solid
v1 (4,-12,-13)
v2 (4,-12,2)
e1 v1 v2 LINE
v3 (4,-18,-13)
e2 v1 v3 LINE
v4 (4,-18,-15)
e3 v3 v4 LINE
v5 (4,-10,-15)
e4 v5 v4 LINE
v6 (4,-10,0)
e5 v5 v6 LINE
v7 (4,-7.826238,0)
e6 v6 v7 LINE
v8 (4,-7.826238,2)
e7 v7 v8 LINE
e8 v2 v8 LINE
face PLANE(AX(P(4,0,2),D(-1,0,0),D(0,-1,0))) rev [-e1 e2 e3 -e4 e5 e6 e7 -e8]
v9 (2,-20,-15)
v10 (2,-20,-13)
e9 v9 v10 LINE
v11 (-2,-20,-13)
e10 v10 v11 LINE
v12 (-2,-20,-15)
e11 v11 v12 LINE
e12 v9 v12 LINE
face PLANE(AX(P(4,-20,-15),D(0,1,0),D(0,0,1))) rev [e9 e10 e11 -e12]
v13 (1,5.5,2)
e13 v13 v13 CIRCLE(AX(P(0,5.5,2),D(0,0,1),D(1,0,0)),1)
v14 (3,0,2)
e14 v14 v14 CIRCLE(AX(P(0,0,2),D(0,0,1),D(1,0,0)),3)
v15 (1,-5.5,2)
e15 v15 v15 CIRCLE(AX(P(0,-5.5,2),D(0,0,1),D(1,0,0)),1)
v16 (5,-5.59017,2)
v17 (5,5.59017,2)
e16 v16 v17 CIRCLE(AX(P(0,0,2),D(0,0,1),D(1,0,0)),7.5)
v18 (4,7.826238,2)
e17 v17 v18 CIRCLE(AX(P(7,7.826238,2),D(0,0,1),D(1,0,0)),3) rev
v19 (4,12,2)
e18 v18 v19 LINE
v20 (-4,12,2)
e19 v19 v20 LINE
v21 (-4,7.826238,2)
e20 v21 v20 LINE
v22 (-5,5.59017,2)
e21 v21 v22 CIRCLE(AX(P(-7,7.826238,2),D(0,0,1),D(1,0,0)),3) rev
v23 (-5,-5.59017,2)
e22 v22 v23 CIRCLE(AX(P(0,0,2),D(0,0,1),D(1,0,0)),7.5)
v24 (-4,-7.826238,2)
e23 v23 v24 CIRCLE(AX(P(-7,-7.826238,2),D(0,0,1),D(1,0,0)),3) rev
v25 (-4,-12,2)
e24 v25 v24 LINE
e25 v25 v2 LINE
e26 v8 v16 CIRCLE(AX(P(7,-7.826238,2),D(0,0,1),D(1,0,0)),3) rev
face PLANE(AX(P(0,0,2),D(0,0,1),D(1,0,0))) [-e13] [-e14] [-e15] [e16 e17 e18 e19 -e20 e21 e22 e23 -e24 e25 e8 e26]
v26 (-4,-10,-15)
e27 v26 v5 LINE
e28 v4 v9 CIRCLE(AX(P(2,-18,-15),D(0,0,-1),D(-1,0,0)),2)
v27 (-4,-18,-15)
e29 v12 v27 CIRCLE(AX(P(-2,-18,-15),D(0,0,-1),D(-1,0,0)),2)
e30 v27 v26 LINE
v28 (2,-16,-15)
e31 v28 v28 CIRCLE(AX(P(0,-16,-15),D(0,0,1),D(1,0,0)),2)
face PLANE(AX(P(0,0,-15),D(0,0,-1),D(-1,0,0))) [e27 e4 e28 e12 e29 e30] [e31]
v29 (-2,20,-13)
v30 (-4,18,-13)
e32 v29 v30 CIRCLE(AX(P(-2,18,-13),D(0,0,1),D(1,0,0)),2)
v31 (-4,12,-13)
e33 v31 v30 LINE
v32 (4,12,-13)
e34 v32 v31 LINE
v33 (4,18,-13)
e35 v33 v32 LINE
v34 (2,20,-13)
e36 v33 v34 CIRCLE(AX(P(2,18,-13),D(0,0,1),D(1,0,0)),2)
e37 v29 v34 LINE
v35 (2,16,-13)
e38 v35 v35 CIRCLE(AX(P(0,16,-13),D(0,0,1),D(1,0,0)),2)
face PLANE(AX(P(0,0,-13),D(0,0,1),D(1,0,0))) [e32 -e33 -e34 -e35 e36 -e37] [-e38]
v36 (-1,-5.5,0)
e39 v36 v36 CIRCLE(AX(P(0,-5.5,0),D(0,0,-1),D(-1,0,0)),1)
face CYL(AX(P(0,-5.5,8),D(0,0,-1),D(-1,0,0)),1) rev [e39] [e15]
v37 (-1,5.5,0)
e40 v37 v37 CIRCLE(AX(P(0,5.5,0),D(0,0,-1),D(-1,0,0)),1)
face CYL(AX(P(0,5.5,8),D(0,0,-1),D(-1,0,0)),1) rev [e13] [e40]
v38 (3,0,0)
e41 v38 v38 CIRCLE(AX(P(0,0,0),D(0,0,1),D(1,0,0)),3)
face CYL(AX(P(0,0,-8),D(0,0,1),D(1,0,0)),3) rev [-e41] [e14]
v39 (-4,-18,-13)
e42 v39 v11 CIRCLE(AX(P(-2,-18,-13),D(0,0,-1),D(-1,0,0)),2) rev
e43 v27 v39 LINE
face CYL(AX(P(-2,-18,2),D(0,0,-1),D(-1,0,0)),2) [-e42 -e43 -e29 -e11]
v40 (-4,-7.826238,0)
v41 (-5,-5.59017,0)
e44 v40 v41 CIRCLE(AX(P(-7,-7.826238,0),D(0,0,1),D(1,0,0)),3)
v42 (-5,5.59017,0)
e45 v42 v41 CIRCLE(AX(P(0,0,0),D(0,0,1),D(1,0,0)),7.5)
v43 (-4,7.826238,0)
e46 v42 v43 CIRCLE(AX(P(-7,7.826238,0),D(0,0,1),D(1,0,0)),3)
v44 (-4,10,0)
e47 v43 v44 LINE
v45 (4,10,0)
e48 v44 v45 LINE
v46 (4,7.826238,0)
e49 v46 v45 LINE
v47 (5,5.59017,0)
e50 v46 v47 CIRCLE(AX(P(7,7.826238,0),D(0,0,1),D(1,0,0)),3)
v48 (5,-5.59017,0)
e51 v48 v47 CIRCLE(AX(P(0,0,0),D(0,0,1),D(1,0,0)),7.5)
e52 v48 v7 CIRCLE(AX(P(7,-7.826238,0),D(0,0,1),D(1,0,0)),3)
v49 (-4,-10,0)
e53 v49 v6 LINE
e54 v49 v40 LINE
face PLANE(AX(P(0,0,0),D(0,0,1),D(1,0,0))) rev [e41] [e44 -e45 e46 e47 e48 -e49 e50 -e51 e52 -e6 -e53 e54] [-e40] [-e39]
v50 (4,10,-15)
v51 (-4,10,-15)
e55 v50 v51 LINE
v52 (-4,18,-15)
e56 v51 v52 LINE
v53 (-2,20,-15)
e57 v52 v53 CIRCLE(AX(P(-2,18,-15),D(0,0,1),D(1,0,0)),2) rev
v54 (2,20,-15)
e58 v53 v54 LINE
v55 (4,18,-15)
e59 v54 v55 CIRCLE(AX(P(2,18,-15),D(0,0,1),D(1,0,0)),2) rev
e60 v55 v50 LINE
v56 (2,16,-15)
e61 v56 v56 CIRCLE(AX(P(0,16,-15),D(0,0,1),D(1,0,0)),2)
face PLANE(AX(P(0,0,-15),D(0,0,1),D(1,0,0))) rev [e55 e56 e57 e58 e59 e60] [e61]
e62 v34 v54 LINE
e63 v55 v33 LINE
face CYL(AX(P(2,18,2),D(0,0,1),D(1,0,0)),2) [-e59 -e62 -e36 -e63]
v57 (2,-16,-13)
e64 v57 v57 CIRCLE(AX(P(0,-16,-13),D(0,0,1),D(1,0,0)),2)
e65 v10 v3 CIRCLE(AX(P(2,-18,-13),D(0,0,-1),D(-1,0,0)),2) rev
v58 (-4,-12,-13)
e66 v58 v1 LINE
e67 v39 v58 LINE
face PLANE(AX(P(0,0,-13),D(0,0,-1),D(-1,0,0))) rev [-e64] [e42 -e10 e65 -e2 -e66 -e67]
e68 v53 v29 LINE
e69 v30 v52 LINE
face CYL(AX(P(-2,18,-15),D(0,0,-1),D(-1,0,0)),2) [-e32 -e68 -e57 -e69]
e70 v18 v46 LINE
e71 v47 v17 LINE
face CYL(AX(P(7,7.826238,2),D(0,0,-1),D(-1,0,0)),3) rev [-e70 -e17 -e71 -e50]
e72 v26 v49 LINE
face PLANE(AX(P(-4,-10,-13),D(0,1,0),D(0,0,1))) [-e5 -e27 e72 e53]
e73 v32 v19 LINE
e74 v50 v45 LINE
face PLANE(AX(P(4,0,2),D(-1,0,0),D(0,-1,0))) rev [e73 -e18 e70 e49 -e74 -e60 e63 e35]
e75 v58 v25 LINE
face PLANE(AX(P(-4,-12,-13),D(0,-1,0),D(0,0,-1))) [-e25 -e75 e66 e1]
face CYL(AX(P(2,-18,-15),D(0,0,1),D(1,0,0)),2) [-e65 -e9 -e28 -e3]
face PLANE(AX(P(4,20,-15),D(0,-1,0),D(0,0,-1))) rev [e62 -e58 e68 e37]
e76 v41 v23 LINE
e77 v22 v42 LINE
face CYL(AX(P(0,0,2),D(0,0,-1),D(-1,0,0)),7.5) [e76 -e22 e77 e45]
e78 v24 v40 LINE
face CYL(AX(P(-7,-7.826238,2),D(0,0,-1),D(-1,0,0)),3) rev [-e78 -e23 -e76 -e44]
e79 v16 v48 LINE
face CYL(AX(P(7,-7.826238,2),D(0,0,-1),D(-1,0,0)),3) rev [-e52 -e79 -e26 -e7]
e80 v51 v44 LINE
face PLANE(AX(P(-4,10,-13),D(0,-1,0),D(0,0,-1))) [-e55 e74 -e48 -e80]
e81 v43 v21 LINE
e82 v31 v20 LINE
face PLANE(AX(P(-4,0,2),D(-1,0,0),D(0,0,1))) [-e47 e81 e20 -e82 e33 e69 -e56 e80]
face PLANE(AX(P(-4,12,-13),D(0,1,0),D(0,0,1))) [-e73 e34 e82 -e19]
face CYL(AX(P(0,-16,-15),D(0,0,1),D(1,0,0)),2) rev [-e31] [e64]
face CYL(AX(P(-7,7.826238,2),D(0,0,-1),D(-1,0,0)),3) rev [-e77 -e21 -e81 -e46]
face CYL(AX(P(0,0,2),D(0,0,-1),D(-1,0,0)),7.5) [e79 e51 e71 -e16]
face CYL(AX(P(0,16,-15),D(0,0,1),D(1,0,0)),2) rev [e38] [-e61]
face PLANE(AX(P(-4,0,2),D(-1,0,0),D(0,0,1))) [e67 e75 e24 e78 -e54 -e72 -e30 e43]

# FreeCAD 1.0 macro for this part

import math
import FreeCAD as App
import Part
import Sketcher

V = App.Vector
Q = App.Units.Quantity


def edges_at(feature, points):
    """Names of the edges that pass closest to the given points."""
    edges = feature.Shape.Edges
    near = lambda p: min(range(len(edges)), key=lambda i: edges[i].distToShape(Part.Vertex(*p))[0])
    return sorted({f"Edge{near(p) + 1}" for p in points})

doc = App.newDocument("Part")
body = doc.addObject("PartDesign::Body", "Body")

# Sketch on XY plane
sketch1 = body.newObject("Sketcher::SketchObject", "Sketch")
sketch1.AttachmentSupport = (doc.getObject("XY_Plane"), [""])
sketch1.MapMode = "FlatFace"
sketch1.addGeometry([
    Part.ArcOfCircle(Part.Circle(V(0, 0, 0), V(0, 0, 1), 7.5), math.radians(-57.769047), math.radians(0)),  # 0
    Part.ArcOfCircle(Part.Circle(V(0, 0, 0), V(0, 0, 1), 7.5), math.radians(0), math.radians(57.769047)),  # 1
    Part.LineSegment(V(4, 6.344289, 0), V(4, 10, 0)),  # 2
    Part.LineSegment(V(4, 10, 0), V(-4, 10, 0)),  # 3
    Part.LineSegment(V(-4, 10, 0), V(-4, 6.344289, 0)),  # 4
    Part.ArcOfCircle(Part.Circle(V(0, 0, 0), V(0, 0, 1), 7.5), math.radians(122.230953), math.radians(237.769047)),  # 5
    Part.LineSegment(V(-4, -6.344289, 0), V(-4, -10, 0)),  # 6
    Part.LineSegment(V(-4, -10, 0), V(4, -10, 0)),  # 7
    Part.LineSegment(V(4, -10, 0), V(4, -6.344289, 0)),  # 8
    Part.Circle(V(0, 0, 0), V(0, 0, 1), 2),  # 9
], False)
sketch1.addConstraint([
    Sketcher.Constraint("Tangent", 0, 2, 1, 1),
    Sketcher.Constraint("Coincident", 1, 2, 2, 1),
    Sketcher.Constraint("Coincident", 2, 2, 3, 1),
    Sketcher.Constraint("Coincident", 3, 2, 4, 1),
    Sketcher.Constraint("Coincident", 4, 2, 5, 1),
    Sketcher.Constraint("Coincident", 5, 2, 6, 1),
    Sketcher.Constraint("Coincident", 6, 2, 7, 1),
    Sketcher.Constraint("Coincident", 7, 2, 8, 1),
    Sketcher.Constraint("Coincident", 8, 2, 0, 1),
    Sketcher.Constraint("Vertical", 2),
    Sketcher.Constraint("Horizontal", 3),
    Sketcher.Constraint("Vertical", 4),
    Sketcher.Constraint("Vertical", 6),
    Sketcher.Constraint("Horizontal", 7),
    Sketcher.Constraint("Vertical", 8),
    Sketcher.Constraint("Coincident", 0, 3, -1, 1),
    Sketcher.Constraint("Coincident", 5, 3, -1, 1),
    Sketcher.Constraint("Coincident", 9, 3, -1, 1),
    Sketcher.Constraint("Equal", 0, 1),
    Sketcher.Constraint("Equal", 1, 5),
    Sketcher.Constraint("Symmetric", 2, 2, 6, 2, -1, 1),
    Sketcher.Constraint("PointOnObject", 0, 2, -1),
    Sketcher.Constraint("Horizontal", 1, 2, 4, 2),
    Sketcher.Constraint("Horizontal", 5, 2, 8, 2),
    Sketcher.Constraint("Diameter", 9, Q("4 mm")),
    Sketcher.Constraint("Radius", 0, Q("7.5 mm")),
    Sketcher.Constraint("DistanceX", 3, 2, 3, 1, Q("8 mm")),
    Sketcher.Constraint("DistanceY", -1, 1, 2, 2, Q("10 mm")),
])
pad1 = body.newObject("PartDesign::Pad", "Pad")
pad1.Profile = sketch1
pad1.Length = 2

# Sketch on XY plane
sketch2 = body.newObject("Sketcher::SketchObject", "Sketch001")
sketch2.AttachmentSupport = (doc.getObject("XY_Plane"), [""])
sketch2.MapMode = "FlatFace"
sketch2.AttachmentOffset = App.Placement(V(0, 0, 2), App.Rotation())
sketch2.addGeometry([
    Part.LineSegment(V(-4, -10, 0), V(-4, -12, 0)),  # 0
    Part.LineSegment(V(-4, -12, 0), V(4, -12, 0)),  # 1
    Part.LineSegment(V(4, -12, 0), V(4, -10, 0)),  # 2
    Part.LineSegment(V(4, -10, 0), V(-4, -10, 0)),  # 3
    Part.LineSegment(V(-4, 12, 0), V(-4, 10, 0)),  # 4
    Part.LineSegment(V(-4, 10, 0), V(4, 10, 0)),  # 5
    Part.LineSegment(V(4, 10, 0), V(4, 12, 0)),  # 6
    Part.LineSegment(V(4, 12, 0), V(-4, 12, 0)),  # 7
], False)
sketch2.addConstraint([
    Sketcher.Constraint("Coincident", 0, 2, 1, 1),
    Sketcher.Constraint("Coincident", 1, 2, 2, 1),
    Sketcher.Constraint("Coincident", 2, 2, 3, 1),
    Sketcher.Constraint("Coincident", 3, 2, 0, 1),
    Sketcher.Constraint("Coincident", 4, 2, 5, 1),
    Sketcher.Constraint("Coincident", 5, 2, 6, 1),
    Sketcher.Constraint("Coincident", 6, 2, 7, 1),
    Sketcher.Constraint("Coincident", 7, 2, 4, 1),
    Sketcher.Constraint("Vertical", 0),
    Sketcher.Constraint("Horizontal", 1),
    Sketcher.Constraint("Vertical", 2),
    Sketcher.Constraint("Horizontal", 3),
    Sketcher.Constraint("Vertical", 4),
    Sketcher.Constraint("Horizontal", 5),
    Sketcher.Constraint("Vertical", 6),
    Sketcher.Constraint("Horizontal", 7),
    Sketcher.Constraint("Symmetric", 2, 2, 4, 2, -1, 1),
    Sketcher.Constraint("Symmetric", 0, 2, 6, 2, -1, 1),
    Sketcher.Constraint("Vertical", 3, 2, 4, 2),
    Sketcher.Constraint("DistanceX", 1, 1, 1, 2, Q("8 mm")),
    Sketcher.Constraint("DistanceY", 0, 2, 0, 1, Q("2 mm")),
    Sketcher.Constraint("DistanceY", 0, 2, -1, 1, Q("12 mm")),
])
pad2 = body.newObject("PartDesign::Pad", "Pad001")
pad2.Profile = sketch2
pad2.Length = 15
pad2.Reversed = True

# Sketch on XY plane
sketch3 = body.newObject("Sketcher::SketchObject", "Sketch002")
sketch3.AttachmentSupport = (doc.getObject("XY_Plane"), [""])
sketch3.MapMode = "FlatFace"
sketch3.addGeometry([
    Part.Circle(V(0, 5.5, 0), V(0, 0, 1), 1),
    Part.Circle(V(0, -5.5, 0), V(0, 0, 1), 1),
], False)
sketch3.addConstraint([
    Sketcher.Constraint("Equal", 0, 1),
    Sketcher.Constraint("Symmetric", 0, 3, 1, 3, -1, 1),
    Sketcher.Constraint("PointOnObject", 0, 3, -2),
    Sketcher.Constraint("Diameter", 0, Q("2 mm")),
    Sketcher.Constraint("DistanceY", 1, 3, 0, 3, Q("11 mm")),
])
pocket1 = body.newObject("PartDesign::Pocket", "Pocket")
pocket1.Profile = sketch3
pocket1.Length = 8
pocket1.Reversed = True

# Sketch on XY plane
sketch4 = body.newObject("Sketcher::SketchObject", "Sketch003")
sketch4.AttachmentSupport = (doc.getObject("XY_Plane"), [""])
sketch4.MapMode = "FlatFace"
sketch4.AttachmentOffset = App.Placement(V(0, 0, -13), App.Rotation())
sketch4.addGeometry([
    Part.LineSegment(V(4, -10, 0), V(4, -20, 0)),  # 0
    Part.LineSegment(V(4, -20, 0), V(-4, -20, 0)),  # 1
    Part.LineSegment(V(-4, -20, 0), V(-4, -10, 0)),  # 2
    Part.LineSegment(V(-4, -10, 0), V(4, -10, 0)),  # 3
    Part.LineSegment(V(4, 20, 0), V(4, 10, 0)),  # 4
    Part.LineSegment(V(4, 10, 0), V(-4, 10, 0)),  # 5
    Part.LineSegment(V(-4, 10, 0), V(-4, 20, 0)),  # 6
    Part.LineSegment(V(-4, 20, 0), V(4, 20, 0)),  # 7
], False)
sketch4.addConstraint([
    Sketcher.Constraint("Coincident", 0, 2, 1, 1),
    Sketcher.Constraint("Coincident", 1, 2, 2, 1),
    Sketcher.Constraint("Coincident", 2, 2, 3, 1),
    Sketcher.Constraint("Coincident", 3, 2, 0, 1),
    Sketcher.Constraint("Coincident", 4, 2, 5, 1),
    Sketcher.Constraint("Coincident", 5, 2, 6, 1),
    Sketcher.Constraint("Coincident", 6, 2, 7, 1),
    Sketcher.Constraint("Coincident", 7, 2, 4, 1),
    Sketcher.Constraint("Vertical", 0),
    Sketcher.Constraint("Horizontal", 1),
    Sketcher.Constraint("Vertical", 2),
    Sketcher.Constraint("Horizontal", 3),
    Sketcher.Constraint("Vertical", 4),
    Sketcher.Constraint("Horizontal", 5),
    Sketcher.Constraint("Vertical", 6),
    Sketcher.Constraint("Horizontal", 7),
    Sketcher.Constraint("Symmetric", 2, 2, 4, 2, -1, 1),
    Sketcher.Constraint("Symmetric", 0, 2, 6, 2, -1, 1),
    Sketcher.Constraint("Vertical", 3, 2, 4, 2),
    Sketcher.Constraint("DistanceX", 1, 2, 1, 1, Q("8 mm")),
    Sketcher.Constraint("DistanceY", 0, 2, 0, 1, Q("10 mm")),
    Sketcher.Constraint("DistanceY", 0, 2, -1, 1, Q("20 mm")),
])
pad3 = body.newObject("PartDesign::Pad", "Pad002")
pad3.Profile = sketch4
pad3.Length = 2
pad3.Reversed = True

# Sketch on XY plane
sketch5 = body.newObject("Sketcher::SketchObject", "Sketch004")
sketch5.AttachmentSupport = (doc.getObject("XY_Plane"), [""])
sketch5.MapMode = "FlatFace"
sketch5.AttachmentOffset = App.Placement(V(0, 0, -13), App.Rotation())
sketch5.addGeometry([
    Part.Circle(V(0, 16, 0), V(0, 0, 1), 2),
    Part.Circle(V(0, -16, 0), V(0, 0, 1), 2),
], False)
sketch5.addConstraint([
    Sketcher.Constraint("Equal", 0, 1),
    Sketcher.Constraint("Symmetric", 0, 3, 1, 3, -1, 1),
    Sketcher.Constraint("PointOnObject", 0, 3, -2),
    Sketcher.Constraint("Diameter", 0, Q("4 mm")),
    Sketcher.Constraint("DistanceY", -1, 1, 0, 3, Q("16 mm")),
])
pocket2 = body.newObject("PartDesign::Pocket", "Pocket001")
pocket2.Profile = sketch5
pocket2.Length = 2
doc.recompute()

fillet = body.newObject("PartDesign::Fillet", "Fillet")
fillet.Base = (pocket2, edges_at(pocket2, [
    (4, -6.344, 1),
    (-4, -6.344, 1),
    (-4, 6.344, 1),
    (4, 6.344, 1),
]))
fillet.Radius = 3
doc.recompute()

fillet2 = body.newObject("PartDesign::Fillet", "Fillet001")
fillet2.Base = (fillet, edges_at(fillet, [
    (4, 20, -14),
    (-4, 20, -14),
    (4, -20, -14),
    (-4, -20, -14),
]))
fillet2.Radius = 2

# Sketch on XY plane
sketch6 = body.newObject("Sketcher::SketchObject", "Sketch005")
sketch6.AttachmentSupport = (doc.getObject("XY_Plane"), [""])
sketch6.MapMode = "FlatFace"
sketch6.AttachmentOffset = App.Placement(V(0, 0, 2), App.Rotation())
sketch6.addGeometry(Part.Circle(V(0, 0, 0), V(0, 0, 1), 3), False)
sketch6.addConstraint([
    Sketcher.Constraint("Coincident", 0, 3, -1, 1),
    Sketcher.Constraint("Diameter", 0, Q("6 mm")),
])
pocket3 = body.newObject("PartDesign::Pocket", "Pocket002")
pocket3.Profile = sketch6
pocket3.Length = 10

doc.recompute()
